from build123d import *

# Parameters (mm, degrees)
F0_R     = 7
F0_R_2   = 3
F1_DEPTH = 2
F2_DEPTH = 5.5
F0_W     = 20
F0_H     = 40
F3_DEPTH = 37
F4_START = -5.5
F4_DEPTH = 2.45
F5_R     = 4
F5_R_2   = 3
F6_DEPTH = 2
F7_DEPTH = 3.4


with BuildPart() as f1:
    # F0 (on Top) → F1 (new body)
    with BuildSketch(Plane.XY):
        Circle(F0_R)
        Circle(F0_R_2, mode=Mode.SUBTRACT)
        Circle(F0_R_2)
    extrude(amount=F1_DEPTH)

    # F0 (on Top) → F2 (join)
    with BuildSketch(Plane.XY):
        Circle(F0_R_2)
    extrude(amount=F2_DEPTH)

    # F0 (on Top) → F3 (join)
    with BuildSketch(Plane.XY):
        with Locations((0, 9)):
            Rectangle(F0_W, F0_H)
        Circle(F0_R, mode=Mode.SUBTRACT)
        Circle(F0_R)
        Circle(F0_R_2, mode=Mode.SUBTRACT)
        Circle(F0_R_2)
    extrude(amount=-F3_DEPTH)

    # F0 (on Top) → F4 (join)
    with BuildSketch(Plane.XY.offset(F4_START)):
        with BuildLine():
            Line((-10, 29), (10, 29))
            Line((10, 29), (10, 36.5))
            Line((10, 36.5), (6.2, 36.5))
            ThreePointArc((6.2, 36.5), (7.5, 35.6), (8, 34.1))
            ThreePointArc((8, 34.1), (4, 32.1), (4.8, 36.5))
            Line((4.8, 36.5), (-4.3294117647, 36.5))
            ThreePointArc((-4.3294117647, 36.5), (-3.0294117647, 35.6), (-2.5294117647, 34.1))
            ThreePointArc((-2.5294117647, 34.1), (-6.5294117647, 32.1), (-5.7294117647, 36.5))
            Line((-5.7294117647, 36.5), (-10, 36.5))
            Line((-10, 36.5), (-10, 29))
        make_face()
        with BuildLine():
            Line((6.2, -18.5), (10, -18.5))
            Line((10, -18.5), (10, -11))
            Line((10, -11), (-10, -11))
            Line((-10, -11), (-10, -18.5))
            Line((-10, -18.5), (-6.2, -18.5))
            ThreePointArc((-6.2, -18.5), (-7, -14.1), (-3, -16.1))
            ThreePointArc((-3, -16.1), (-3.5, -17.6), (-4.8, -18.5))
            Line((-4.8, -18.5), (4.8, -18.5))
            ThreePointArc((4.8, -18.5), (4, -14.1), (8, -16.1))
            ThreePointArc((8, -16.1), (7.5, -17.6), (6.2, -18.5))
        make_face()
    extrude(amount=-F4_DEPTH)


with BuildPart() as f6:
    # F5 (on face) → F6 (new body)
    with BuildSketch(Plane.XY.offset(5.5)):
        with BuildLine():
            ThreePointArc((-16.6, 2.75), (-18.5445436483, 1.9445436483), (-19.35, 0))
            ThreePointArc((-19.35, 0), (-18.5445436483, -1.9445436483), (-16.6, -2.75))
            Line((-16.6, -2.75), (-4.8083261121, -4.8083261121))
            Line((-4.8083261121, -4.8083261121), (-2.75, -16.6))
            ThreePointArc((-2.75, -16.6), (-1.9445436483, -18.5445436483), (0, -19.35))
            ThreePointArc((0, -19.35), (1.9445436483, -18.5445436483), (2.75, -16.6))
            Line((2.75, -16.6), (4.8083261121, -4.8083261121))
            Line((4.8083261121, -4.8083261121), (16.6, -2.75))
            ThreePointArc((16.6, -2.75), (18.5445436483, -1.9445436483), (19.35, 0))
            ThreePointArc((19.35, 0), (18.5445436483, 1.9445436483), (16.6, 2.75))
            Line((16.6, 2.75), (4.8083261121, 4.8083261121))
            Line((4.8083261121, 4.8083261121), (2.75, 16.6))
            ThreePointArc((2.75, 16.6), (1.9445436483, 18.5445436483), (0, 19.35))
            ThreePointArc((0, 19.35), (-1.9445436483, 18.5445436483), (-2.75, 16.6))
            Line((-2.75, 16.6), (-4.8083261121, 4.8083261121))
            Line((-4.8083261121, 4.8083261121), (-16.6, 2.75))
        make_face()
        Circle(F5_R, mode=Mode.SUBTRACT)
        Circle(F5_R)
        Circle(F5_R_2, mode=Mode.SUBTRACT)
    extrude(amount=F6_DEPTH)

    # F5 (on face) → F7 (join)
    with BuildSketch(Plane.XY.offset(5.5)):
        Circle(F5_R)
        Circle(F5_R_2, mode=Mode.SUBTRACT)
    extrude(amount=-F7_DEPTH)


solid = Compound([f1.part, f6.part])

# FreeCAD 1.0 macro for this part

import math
import FreeCAD as App
import Part
import Sketcher
from FreeCAD import Vector

doc = App.newDocument("Part")
body = doc.addObject("PartDesign::Body", "Body")

# Sketch on XY plane
sketch1 = body.newObject("Sketcher::SketchObject", "Sketch")
sketch1.AttachmentSupport = (doc.getObject("XY_Plane"), [""])
sketch1.MapMode = "FlatFace"
sketch1.addGeometry(Part.Circle(Vector(0, 0, 0), Vector(0, 0, 1), 7), False)
sketch1.addConstraint(Sketcher.Constraint("Coincident", 0, 3, -1, 1))
sketch1.addConstraint(Sketcher.Constraint("Diameter", 0, 14.0))
pad1 = body.newObject("PartDesign::Pad", "Pad")
pad1.Profile = sketch1
pad1.Length = 2

# Sketch on XY plane
sketch2 = body.newObject("Sketcher::SketchObject", "Sketch001")
sketch2.AttachmentSupport = (doc.getObject("XY_Plane"), [""])
sketch2.MapMode = "FlatFace"
sketch2.addGeometry(Part.Circle(Vector(0, 0, 0), Vector(0, 0, 1), 3), False)
sketch2.addConstraint(Sketcher.Constraint("Coincident", 0, 3, -1, 1))
sketch2.addConstraint(Sketcher.Constraint("Diameter", 0, 6.0))
pad2 = body.newObject("PartDesign::Pad", "Pad001")
pad2.Profile = sketch2
pad2.Length = 5.5

# Sketch on XY plane
sketch3 = body.newObject("Sketcher::SketchObject", "Sketch002")
sketch3.AttachmentSupport = (doc.getObject("XY_Plane"), [""])
sketch3.MapMode = "FlatFace"
sketch3.addGeometry(Part.LineSegment(Vector(-10, 29, 0), Vector(-10, -11, 0)), False)
sketch3.addGeometry(Part.LineSegment(Vector(-10, -11, 0), Vector(10, -11, 0)), False)
sketch3.addGeometry(Part.LineSegment(Vector(10, -11, 0), Vector(10, 29, 0)), False)
sketch3.addGeometry(Part.LineSegment(Vector(10, 29, 0), Vector(-10, 29, 0)), False)
sketch3.addConstraint(Sketcher.Constraint("Coincident", 0, 2, 1, 1))
sketch3.addConstraint(Sketcher.Constraint("Coincident", 1, 2, 2, 1))
sketch3.addConstraint(Sketcher.Constraint("Coincident", 2, 2, 3, 1))
sketch3.addConstraint(Sketcher.Constraint("Coincident", 3, 2, 0, 1))
sketch3.addConstraint(Sketcher.Constraint("Vertical", 0))
sketch3.addConstraint(Sketcher.Constraint("Horizontal", 1))
sketch3.addConstraint(Sketcher.Constraint("Vertical", 2))
sketch3.addConstraint(Sketcher.Constraint("Horizontal", 3))
sketch3.addConstraint(Sketcher.Constraint("DistanceX", 1, 1, 1, 2, 20.0))
sketch3.addConstraint(Sketcher.Constraint("DistanceY", 0, 2, 0, 1, 40.0))
sketch3.addConstraint(Sketcher.Constraint("DistanceX", 0, 2, -1, 1, 10.0))
sketch3.addConstraint(Sketcher.Constraint("DistanceY", 0, 2, -1, 1, 11.0))
pad3 = body.newObject("PartDesign::Pad", "Pad002")
pad3.Profile = sketch3
pad3.Length = 37
pad3.Reversed = True

# Sketch on XY plane
sketch4 = body.newObject("Sketcher::SketchObject", "Sketch003")
sketch4.AttachmentSupport = (doc.getObject("XY_Plane"), [""])
sketch4.MapMode = "FlatFace"
sketch4.AttachmentOffset = App.Placement(Vector(0, 0, -5.5), App.Rotation())
sketch4.addGeometry(Part.LineSegment(Vector(-10, 29, 0), Vector(10, 29, 0)), False)
sketch4.addGeometry(Part.LineSegment(Vector(10, 29, 0), Vector(10, 36.5, 0)), False)
sketch4.addGeometry(Part.LineSegment(Vector(10, 36.5, 0), Vector(6.2, 36.5, 0)), False)
sketch4.addGeometry(Part.ArcOfCircle(Part.Circle(Vector(5.5, 34.1, 0), Vector(0, 0, 1), 2.5), math.radians(106), math.radians(434)), False)
sketch4.addGeometry(Part.LineSegment(Vector(4.8, 36.5, 0), Vector(-4.3, 36.5, 0)), False)
sketch4.addGeometry(Part.ArcOfCircle(Part.Circle(Vector(-5, 34.1, 0), Vector(0, 0, 1), 2.5), math.radians(106), math.radians(434)), False)
sketch4.addGeometry(Part.LineSegment(Vector(-5.7, 36.5, 0), Vector(-10, 36.5, 0)), False)
sketch4.addGeometry(Part.LineSegment(Vector(-10, 36.5, 0), Vector(-10, 29, 0)), False)
sketch4.addGeometry(Part.LineSegment(Vector(6.2, -18.5, 0), Vector(10, -18.5, 0)), False)
sketch4.addGeometry(Part.LineSegment(Vector(10, -18.5, 0), Vector(10, -11, 0)), False)
sketch4.addGeometry(Part.LineSegment(Vector(10, -11, 0), Vector(-10, -11, 0)), False)
sketch4.addGeometry(Part.LineSegment(Vector(-10, -11, 0), Vector(-10, -18.5, 0)), False)
sketch4.addGeometry(Part.LineSegment(Vector(-10, -18.5, 0), Vector(-6.2, -18.5, 0)), False)
sketch4.addGeometry(Part.ArcOfCircle(Part.Circle(Vector(-5.5, -16.1, 0), Vector(0, 0, 1), 2.5), math.radians(-74), math.radians(254)), False)
sketch4.addGeometry(Part.LineSegment(Vector(-4.8, -18.5, 0), Vector(4.8, -18.5, 0)), False)
sketch4.addGeometry(Part.ArcOfCircle(Part.Circle(Vector(5.5, -16.1, 0), Vector(0, 0, 1), 2.5), math.radians(-74), math.radians(254)), False)
sketch4.addConstraint(Sketcher.Constraint("Coincident", 0, 2, 1, 1))
sketch4.addConstraint(Sketcher.Constraint("Coincident", 1, 2, 2, 1))
sketch4.addConstraint(Sketcher.Constraint("Coincident", 2, 2, 3, 2))
sketch4.addConstraint(Sketcher.Constraint("Coincident", 3, 1, 4, 1))
sketch4.addConstraint(Sketcher.Constraint("Coincident", 4, 2, 5, 2))
sketch4.addConstraint(Sketcher.Constraint("Coincident", 5, 1, 6, 1))
sketch4.addConstraint(Sketcher.Constraint("Coincident", 6, 2, 7, 1))
sketch4.addConstraint(Sketcher.Constraint("Coincident", 7, 2, 0, 1))
sketch4.addConstraint(Sketcher.Constraint("Coincident", 8, 2, 9, 1))
sketch4.addConstraint(Sketcher.Constraint("Coincident", 9, 2, 10, 1))
sketch4.addConstraint(Sketcher.Constraint("Coincident", 10, 2, 11, 1))
sketch4.addConstraint(Sketcher.Constraint("Coincident", 11, 2, 12, 1))
sketch4.addConstraint(Sketcher.Constraint("Coincident", 12, 2, 13, 2))
sketch4.addConstraint(Sketcher.Constraint("Coincident", 13, 1, 14, 1))
sketch4.addConstraint(Sketcher.Constraint("Coincident", 14, 2, 15, 2))
sketch4.addConstraint(Sketcher.Constraint("Coincident", 15, 1, 8, 1))
sketch4.addConstraint(Sketcher.Constraint("Horizontal", 0))
sketch4.addConstraint(Sketcher.Constraint("Vertical", 1))
sketch4.addConstraint(Sketcher.Constraint("Horizontal", 2))
sketch4.addConstraint(Sketcher.Constraint("Horizontal", 4))
sketch4.addConstraint(Sketcher.Constraint("Horizontal", 6))
sketch4.addConstraint(Sketcher.Constraint("Vertical", 7))
sketch4.addConstraint(Sketcher.Constraint("Horizontal", 8))
sketch4.addConstraint(Sketcher.Constraint("Vertical", 9))
sketch4.addConstraint(Sketcher.Constraint("Horizontal", 10))
sketch4.addConstraint(Sketcher.Constraint("Vertical", 11))
sketch4.addConstraint(Sketcher.Constraint("Horizontal", 12))
sketch4.addConstraint(Sketcher.Constraint("Horizontal", 14))
sketch4.addConstraint(Sketcher.Constraint("Equal", 3, 5))
sketch4.addConstraint(Sketcher.Constraint("Equal", 5, 13))
sketch4.addConstraint(Sketcher.Constraint("Equal", 13, 15))
sketch4.addConstraint(Sketcher.Constraint("Symmetric", 13, 3, 15, 3, -2))
sketch4.addConstraint(Sketcher.Constraint("Symmetric", 1, 2, 6, 2, -2))
sketch4.addConstraint(Sketcher.Constraint("Symmetric", 8, 2, 11, 2, -2))
sketch4.addConstraint(Sketcher.Constraint("Horizontal", 3, 3, 5, 3))
sketch4.addConstraint(Sketcher.Constraint("Horizontal", 2, 2, 3, 1))
sketch4.addConstraint(Sketcher.Constraint("Horizontal", 12, 2, 13, 1))
sketch4.addConstraint(Sketcher.Constraint("Vertical", 3, 3, 15, 3))
sketch4.addConstraint(Sketcher.Constraint("Vertical", 1, 2, 8, 2))
sketch4.addConstraint(Sketcher.Constraint("Vertical", 3, 1, 14, 2))
sketch4.addConstraint(Sketcher.Constraint("Equal", 7, 9))
sketch4.addConstraint(Sketcher.Constraint("Radius", 3, 2.5))
sketch4.addConstraint(Sketcher.Constraint("DistanceX", 0, 1, 0, 2, 20.0))
sketch4.addConstraint(Sketcher.Constraint("DistanceX", 2, 2, 2, 1, 3.8))
sketch4.addConstraint(Sketcher.Constraint("DistanceX", 14, 1, 14, 2, 9.6))
sketch4.addConstraint(Sketcher.Constraint("DistanceY", 1, 1, 1, 2, 7.5))
sketch4.addConstraint(Sketcher.Constraint("DistanceY", -1, 1, 0, 2, 29.0))
sketch4.addConstraint(Sketcher.Constraint("DistanceY", 9, 2, -1, 1, 11.0))
sketch4.addConstraint(Sketcher.Constraint("DistanceX", 4, 2, 4, 1, 9.129412))
pad4 = body.newObject("PartDesign::Pad", "Pad003")
pad4.Profile = sketch4
pad4.Length = 2.45
pad4.Reversed = True
body2 = doc.addObject("PartDesign::Body", "Body001")

# Sketch on XY plane
sketch5 = body2.newObject("Sketcher::SketchObject", "Sketch004")
sketch5.AttachmentSupport = (doc.getObject("XY_Plane001"), [""])
sketch5.MapMode = "FlatFace"
sketch5.AttachmentOffset = App.Placement(Vector(0, 0, 5.5), App.Rotation())
sketch5.addGeometry(Part.ArcOfCircle(Part.Circle(Vector(-16.6, 0, 0), Vector(0, 0, 1), 2.8), math.radians(90), math.radians(180)), False)
sketch5.addGeometry(Part.ArcOfCircle(Part.Circle(Vector(-16.6, 0, 0), Vector(0, 0, 1), 2.8), math.radians(180), math.radians(270)), False)
sketch5.addGeometry(Part.LineSegment(Vector(-16.6, -2.8, 0), Vector(-4.8, -4.8, 0)), False)
sketch5.addGeometry(Part.LineSegment(Vector(-4.8, -4.8, 0), Vector(-2.8, -16.6, 0)), False)
sketch5.addGeometry(Part.ArcOfCircle(Part.Circle(Vector(0, -16.6, 0), Vector(0, 0, 1), 2.8), math.radians(180), math.radians(270)), False)
sketch5.addGeometry(Part.ArcOfCircle(Part.Circle(Vector(0, -16.6, 0), Vector(0, 0, 1), 2.8), math.radians(-90), math.radians(0)), False)
sketch5.addGeometry(Part.LineSegment(Vector(2.8, -16.6, 0), Vector(4.8, -4.8, 0)), False)
sketch5.addGeometry(Part.LineSegment(Vector(4.8, -4.8, 0), Vector(16.6, -2.8, 0)), False)
sketch5.addGeometry(Part.ArcOfCircle(Part.Circle(Vector(16.6, 0, 0), Vector(0, 0, 1), 2.8), math.radians(-90), math.radians(0)), False)
sketch5.addGeometry(Part.ArcOfCircle(Part.Circle(Vector(16.6, 0, 0), Vector(0, 0, 1), 2.8), math.radians(0), math.radians(90)), False)
sketch5.addGeometry(Part.LineSegment(Vector(16.6, 2.8, 0), Vector(4.8, 4.8, 0)), False)
sketch5.addGeometry(Part.LineSegment(Vector(4.8, 4.8, 0), Vector(2.8, 16.6, 0)), False)
sketch5.addGeometry(Part.ArcOfCircle(Part.Circle(Vector(0, 16.6, 0), Vector(0, 0, 1), 2.8), math.radians(0), math.radians(90)), False)
sketch5.addGeometry(Part.ArcOfCircle(Part.Circle(Vector(0, 16.6, 0), Vector(0, 0, 1), 2.8), math.radians(90), math.radians(180)), False)
sketch5.addGeometry(Part.LineSegment(Vector(-2.8, 16.6, 0), Vector(-4.8, 4.8, 0)), False)
sketch5.addGeometry(Part.LineSegment(Vector(-4.8, 4.8, 0), Vector(-16.6, 2.8, 0)), False)
sketch5.addGeometry(Part.Circle(Vector(0, 0, 0), Vector(0, 0, 1), 3), False)
sketch5.addConstraint(Sketcher.Constraint("Tangent", 0, 2, 1, 1))
sketch5.addConstraint(Sketcher.Constraint("Coincident", 1, 2, 2, 1))
sketch5.addConstraint(Sketcher.Constraint("Coincident", 2, 2, 3, 1))
sketch5.addConstraint(Sketcher.Constraint("Coincident", 3, 2, 4, 1))
sketch5.addConstraint(Sketcher.Constraint("Tangent", 4, 2, 5, 1))
sketch5.addConstraint(Sketcher.Constraint("Coincident", 5, 2, 6, 1))
sketch5.addConstraint(Sketcher.Constraint("Coincident", 6, 2, 7, 1))
sketch5.addConstraint(Sketcher.Constraint("Coincident", 7, 2, 8, 1))
sketch5.addConstraint(Sketcher.Constraint("Tangent", 8, 2, 9, 1))
sketch5.addConstraint(Sketcher.Constraint("Coincident", 9, 2, 10, 1))
sketch5.addConstraint(Sketcher.Constraint("Coincident", 10, 2, 11, 1))
sketch5.addConstraint(Sketcher.Constraint("Coincident", 11, 2, 12, 1))
sketch5.addConstraint(Sketcher.Constraint("Tangent", 12, 2, 13, 1))
sketch5.addConstraint(Sketcher.Constraint("Coincident", 13, 2, 14, 1))
sketch5.addConstraint(Sketcher.Constraint("Coincident", 14, 2, 15, 1))
sketch5.addConstraint(Sketcher.Constraint("Coincident", 15, 2, 0, 1))
sketch5.addConstraint(Sketcher.Constraint("Coincident", 16, 3, -1, 1))
sketch5.addConstraint(Sketcher.Constraint("Equal", 0, 1))
sketch5.addConstraint(Sketcher.Constraint("Equal", 1, 4))
sketch5.addConstraint(Sketcher.Constraint("Equal", 4, 5))
sketch5.addConstraint(Sketcher.Constraint("Equal", 5, 8))
sketch5.addConstraint(Sketcher.Constraint("Equal", 8, 9))
sketch5.addConstraint(Sketcher.Constraint("Equal", 9, 12))
sketch5.addConstraint(Sketcher.Constraint("Equal", 12, 13))
sketch5.addConstraint(Sketcher.Constraint("Symmetric", 0, 3, 8, 3, -1, 1))
sketch5.addConstraint(Sketcher.Constraint("Symmetric", 4, 3, 12, 3, -1, 1))
sketch5.addConstraint(Sketcher.Constraint("Symmetric", 2, 2, 10, 2, -1, 1))
sketch5.addConstraint(Sketcher.Constraint("Symmetric", 6, 2, 14, 2, -1, 1))
sketch5.addConstraint(Sketcher.Constraint("Symmetric", 3, 2, 5, 2, -2))
sketch5.addConstraint(Sketcher.Constraint("Symmetric", 2, 2, 6, 2, -2))
sketch5.addConstraint(Sketcher.Constraint("Symmetric", 1, 2, 7, 2, -2))
sketch5.addConstraint(Sketcher.Constraint("PointOnObject", 0, 2, -1))
sketch5.addConstraint(Sketcher.Constraint("PointOnObject", 4, 2, -2))
sketch5.addConstraint(Sketcher.Constraint("PointOnObject", 8, 2, -1))
sketch5.addConstraint(Sketcher.Constraint("PointOnObject", 12, 2, -2))
sketch5.addConstraint(Sketcher.Constraint("Perpendicular", 2, 6))
sketch5.addConstraint(Sketcher.Constraint("Perpendicular", 6, 10))
sketch5.addConstraint(Sketcher.Constraint("Perpendicular", 7, 11))
sketch5.addConstraint(Sketcher.Constraint("Perpendicular", 10, 14))
sketch5.addConstraint(Sketcher.Constraint("Perpendicular", 11, 15))
sketch5.addConstraint(Sketcher.Constraint("Horizontal", 5, 3, 3, 2))
sketch5.addConstraint(Sketcher.Constraint("Vertical", 0, 3, 1, 2))
sketch5.addConstraint(Sketcher.Constraint("Equal", 2, 3))
sketch5.addConstraint(Sketcher.Constraint("Diameter", 16, 6.0))
sketch5.addConstraint(Sketcher.Constraint("Radius", 0, 2.75))
sketch5.addConstraint(Sketcher.Constraint("DistanceX", 0, 3, -1, 1, 16.6))
sketch5.addConstraint(Sketcher.Constraint("Distance", 2, 11.969974))
pad5 = body2.newObject("PartDesign::Pad", "Pad004")
pad5.Profile = sketch5
pad5.Length = 2

# Sketch on XY plane
sketch6 = body2.newObject("Sketcher::SketchObject", "Sketch005")
sketch6.AttachmentSupport = (doc.getObject("XY_Plane001"), [""])
sketch6.MapMode = "FlatFace"
sketch6.AttachmentOffset = App.Placement(Vector(0, 0, 5.5), App.Rotation())
sketch6.addGeometry(Part.Circle(Vector(0, 0, 0), Vector(0, 0, 1), 4), False)
sketch6.addGeometry(Part.Circle(Vector(0, 0, 0), Vector(0, 0, 1), 3), False)
sketch6.addConstraint(Sketcher.Constraint("Coincident", 0, 3, -1, 1))
sketch6.addConstraint(Sketcher.Constraint("Coincident", 1, 3, -1, 1))
sketch6.addConstraint(Sketcher.Constraint("Diameter", 0, 8.0))
sketch6.addConstraint(Sketcher.Constraint("Diameter", 1, 6.0))
pad6 = body2.newObject("PartDesign::Pad", "Pad005")
pad6.Profile = sketch6
pad6.Length = 3.4
pad6.Reversed = True

doc.recompute()
